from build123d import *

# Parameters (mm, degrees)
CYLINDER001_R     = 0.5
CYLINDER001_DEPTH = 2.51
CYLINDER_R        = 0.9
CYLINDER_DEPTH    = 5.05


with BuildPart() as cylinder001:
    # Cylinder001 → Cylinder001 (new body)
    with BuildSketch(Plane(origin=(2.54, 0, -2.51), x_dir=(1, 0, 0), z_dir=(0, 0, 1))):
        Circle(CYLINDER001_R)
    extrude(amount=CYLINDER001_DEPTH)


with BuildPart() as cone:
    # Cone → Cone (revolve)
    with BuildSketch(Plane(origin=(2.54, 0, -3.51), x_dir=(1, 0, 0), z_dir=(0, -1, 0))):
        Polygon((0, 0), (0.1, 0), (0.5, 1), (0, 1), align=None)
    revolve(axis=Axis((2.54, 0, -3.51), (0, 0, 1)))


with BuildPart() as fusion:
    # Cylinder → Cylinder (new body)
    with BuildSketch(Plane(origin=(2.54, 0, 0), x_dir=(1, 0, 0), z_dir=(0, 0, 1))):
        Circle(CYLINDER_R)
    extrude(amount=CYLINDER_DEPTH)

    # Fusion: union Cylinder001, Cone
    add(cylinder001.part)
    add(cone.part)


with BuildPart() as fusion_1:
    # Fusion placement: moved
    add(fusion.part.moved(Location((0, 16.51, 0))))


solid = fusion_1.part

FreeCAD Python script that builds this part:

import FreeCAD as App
import Part
import Sketcher
from FreeCAD import Vector

doc = App.newDocument("Part")
body = doc.addObject("PartDesign::Body", "Body")

# Sketch on XY plane
sketch1 = body.newObject("Sketcher::SketchObject", "Sketch")
sketch1.AttachmentSupport = (doc.getObject("XY_Plane"), [""])
sketch1.MapMode = "FlatFace"
sketch1.AttachmentOffset = App.Placement(Vector(0, 0, -2.51), App.Rotation())
sketch1.addGeometry(Part.Circle(Vector(2.5, 0, 0), Vector(0, 0, 1), 0.5), False)
sketch1.addConstraint([
    Sketcher.Constraint("PointOnObject", 0, 3, -1),
    Sketcher.Constraint("Diameter", 0, 1.0),
    Sketcher.Constraint("DistanceX", -1, 1, 0, 3, 2.54),
])
pad1 = body.newObject("PartDesign::Pad", "Pad")
pad1.Profile = sketch1
pad1.Length = 2.51
body2 = doc.addObject("PartDesign::Body", "Body001")

# Sketch on XZ plane
sketch2 = body2.newObject("Sketcher::SketchObject", "Sketch001")
sketch2.AttachmentSupport = (doc.getObject("XZ_Plane001"), [""])
sketch2.MapMode = "FlatFace"
sketch2.addGeometry([
    Part.LineSegment(Vector(2.54, -3.51, 0), Vector(2.64, -3.51, 0)),
    Part.LineSegment(Vector(2.64, -3.51, 0), Vector(3.04, -2.51, 0)),
    Part.LineSegment(Vector(3.04, -2.51, 0), Vector(2.54, -2.51, 0)),
    Part.LineSegment(Vector(2.54, -2.51, 0), Vector(2.54, -3.51, 0)),
], False)
sketch2.addGeometry(Part.LineSegment(Vector(2.54, -3.51, 0), Vector(2.54, -2.51, 0)), True)  # axis
sketch2.addConstraint([
    Sketcher.Constraint("Coincident", 0, 2, 1, 1),
    Sketcher.Constraint("Coincident", 1, 2, 2, 1),
    Sketcher.Constraint("Coincident", 2, 2, 3, 1),
    Sketcher.Constraint("Coincident", 3, 2, 0, 1),
    Sketcher.Constraint("Horizontal", 0),
    Sketcher.Constraint("Horizontal", 2),
    Sketcher.Constraint("Vertical", 3),
    Sketcher.Constraint("Vertical", 4),
    Sketcher.Constraint("Coincident", 4, 1, 3, 2),
    Sketcher.Constraint("Horizontal", 1, 2, 4, 2),
    Sketcher.Constraint("DistanceY", 3, 2, 3, 1, 1.0),
    Sketcher.Constraint("DistanceX", 0, 1, 0, 2, 0.1),
    Sketcher.Constraint("DistanceX", 2, 2, 2, 1, 0.5),
    Sketcher.Constraint("DistanceX", -1, 1, 0, 2, 2.64),
    Sketcher.Constraint("DistanceY", 0, 2, -1, 1, 3.51),
])
revolution = body2.newObject("PartDesign::Revolution", "Revolution")
revolution.Profile = sketch2
revolution.ReferenceAxis = (sketch2, ["Axis0"])
revolution.Angle = 360
body3 = doc.addObject("PartDesign::Body", "Body002")

# Sketch on XY plane
sketch3 = body3.newObject("Sketcher::SketchObject", "Sketch002")
sketch3.AttachmentSupport = (doc.getObject("XY_Plane002"), [""])
sketch3.MapMode = "FlatFace"
sketch3.addGeometry(Part.Circle(Vector(2.5, 0, 0), Vector(0, 0, 1), 0.9), False)
sketch3.addConstraint([
    Sketcher.Constraint("PointOnObject", 0, 3, -1),
    Sketcher.Constraint("Diameter", 0, 1.8),
    Sketcher.Constraint("DistanceX", -1, 1, 0, 3, 2.54),
])
pad2 = body3.newObject("PartDesign::Pad", "Pad001")
pad2.Profile = sketch3
pad2.Length = 5.05
doc.recompute()

boolean = body3.newObject("PartDesign::Boolean", "Boolean")
boolean.Type = "Fuse"
boolean.addObjects([body])
doc.recompute()

boolean2 = body3.newObject("PartDesign::Boolean", "Boolean001")
boolean2.Type = "Fuse"
boolean2.addObjects([body2])
body4 = doc.addObject("PartDesign::Body", "Body003")
doc.recompute()

body3.Placement = App.Placement(Vector(0, 16.51, 0), App.Rotation(Vector(0, 0, 1), 0))
boolean3 = body4.newObject("PartDesign::Boolean", "Boolean002")
boolean3.Type = "Fuse"
boolean3.addObjects([body3])

doc.recompute()
